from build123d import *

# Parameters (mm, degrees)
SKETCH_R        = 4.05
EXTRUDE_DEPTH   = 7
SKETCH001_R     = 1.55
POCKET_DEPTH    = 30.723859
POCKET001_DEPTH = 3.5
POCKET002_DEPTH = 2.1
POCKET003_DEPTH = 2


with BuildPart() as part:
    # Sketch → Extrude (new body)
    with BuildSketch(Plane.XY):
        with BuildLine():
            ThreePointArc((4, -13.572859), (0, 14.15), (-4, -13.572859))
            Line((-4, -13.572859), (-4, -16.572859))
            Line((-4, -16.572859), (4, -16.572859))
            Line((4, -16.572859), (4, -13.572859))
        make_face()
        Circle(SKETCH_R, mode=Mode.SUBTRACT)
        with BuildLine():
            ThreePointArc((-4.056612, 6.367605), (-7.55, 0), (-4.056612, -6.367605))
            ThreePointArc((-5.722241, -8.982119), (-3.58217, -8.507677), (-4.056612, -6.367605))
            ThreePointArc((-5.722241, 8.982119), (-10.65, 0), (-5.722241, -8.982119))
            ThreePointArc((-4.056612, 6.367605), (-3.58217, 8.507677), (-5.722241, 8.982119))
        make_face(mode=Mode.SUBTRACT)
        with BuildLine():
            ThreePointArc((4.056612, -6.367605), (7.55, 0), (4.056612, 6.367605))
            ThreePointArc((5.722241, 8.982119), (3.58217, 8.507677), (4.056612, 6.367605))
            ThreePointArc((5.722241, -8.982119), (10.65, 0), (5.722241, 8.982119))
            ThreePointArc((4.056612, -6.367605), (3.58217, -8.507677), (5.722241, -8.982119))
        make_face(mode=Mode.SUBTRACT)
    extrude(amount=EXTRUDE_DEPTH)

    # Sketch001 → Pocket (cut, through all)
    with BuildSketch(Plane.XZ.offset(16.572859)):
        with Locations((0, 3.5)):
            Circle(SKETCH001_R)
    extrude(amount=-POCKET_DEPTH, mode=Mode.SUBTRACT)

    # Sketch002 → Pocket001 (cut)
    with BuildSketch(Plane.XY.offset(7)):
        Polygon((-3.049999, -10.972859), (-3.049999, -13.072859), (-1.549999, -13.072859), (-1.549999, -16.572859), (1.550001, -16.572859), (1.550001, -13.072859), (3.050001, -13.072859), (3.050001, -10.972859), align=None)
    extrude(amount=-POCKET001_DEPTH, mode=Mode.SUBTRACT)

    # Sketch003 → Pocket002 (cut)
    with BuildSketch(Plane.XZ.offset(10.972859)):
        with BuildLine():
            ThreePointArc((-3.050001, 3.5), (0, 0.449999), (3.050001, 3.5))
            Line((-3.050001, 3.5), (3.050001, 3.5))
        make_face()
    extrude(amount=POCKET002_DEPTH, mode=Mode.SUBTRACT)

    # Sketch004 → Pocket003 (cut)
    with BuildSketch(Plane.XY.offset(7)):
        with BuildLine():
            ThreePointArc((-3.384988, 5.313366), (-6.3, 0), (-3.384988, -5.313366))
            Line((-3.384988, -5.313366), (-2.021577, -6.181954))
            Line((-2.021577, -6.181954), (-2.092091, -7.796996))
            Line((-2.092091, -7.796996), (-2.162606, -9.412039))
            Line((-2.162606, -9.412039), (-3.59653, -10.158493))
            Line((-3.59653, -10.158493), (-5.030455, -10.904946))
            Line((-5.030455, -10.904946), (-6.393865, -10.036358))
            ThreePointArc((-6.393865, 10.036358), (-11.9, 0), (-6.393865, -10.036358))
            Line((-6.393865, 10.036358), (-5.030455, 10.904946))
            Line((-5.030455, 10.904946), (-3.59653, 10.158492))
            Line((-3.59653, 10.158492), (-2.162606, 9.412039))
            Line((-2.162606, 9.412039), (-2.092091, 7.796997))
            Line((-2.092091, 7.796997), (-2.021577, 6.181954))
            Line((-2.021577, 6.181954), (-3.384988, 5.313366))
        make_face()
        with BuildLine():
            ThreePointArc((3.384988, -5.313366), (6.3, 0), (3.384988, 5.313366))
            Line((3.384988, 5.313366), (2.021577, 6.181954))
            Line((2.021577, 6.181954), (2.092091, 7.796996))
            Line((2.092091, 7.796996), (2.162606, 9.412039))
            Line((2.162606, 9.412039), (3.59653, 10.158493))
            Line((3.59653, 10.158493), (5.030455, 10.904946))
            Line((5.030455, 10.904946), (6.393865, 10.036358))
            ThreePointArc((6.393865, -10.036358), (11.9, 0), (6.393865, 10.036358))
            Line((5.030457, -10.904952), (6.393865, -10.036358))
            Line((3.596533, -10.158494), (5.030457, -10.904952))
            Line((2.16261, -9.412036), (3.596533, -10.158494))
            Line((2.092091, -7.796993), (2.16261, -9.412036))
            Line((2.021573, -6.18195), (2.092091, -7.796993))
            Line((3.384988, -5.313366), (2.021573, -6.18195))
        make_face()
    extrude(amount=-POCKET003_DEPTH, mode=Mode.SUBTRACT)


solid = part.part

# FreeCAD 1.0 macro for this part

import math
import FreeCAD as App
import Part
import Sketcher

V = App.Vector
Q = App.Units.Quantity


def add_polygon(sketch, points):
    """Adds a closed chain of lines whose ends are joined by coincident constraints."""
    first, n = sketch.GeometryCount, len(points)
    for a, b in zip(points, points[1:] + points[:1]):
        sketch.addGeometry(Part.LineSegment(App.Vector(*a, 0), App.Vector(*b, 0)), False)
    for i in range(n):
        sketch.addConstraint(Sketcher.Constraint("Coincident", first + i, 2, first + (i + 1) % n, 1))

doc = App.newDocument("Part")
body = doc.addObject("PartDesign::Body", "Body")

# Sketch on XY plane
sketch1 = body.newObject("Sketcher::SketchObject", "Sketch")
sketch1.AttachmentSupport = (doc.getObject("XY_Plane"), [""])
sketch1.MapMode = "FlatFace"
sketch1.addGeometry([
    Part.ArcOfCircle(Part.Circle(V(0, 0, 0), V(0, 0, 1), 14.2), math.radians(-74), math.radians(254)),  # 0
    Part.LineSegment(V(-4, -13.6, 0), V(-4, -16.6, 0)),  # 1
    Part.LineSegment(V(-4, -16.6, 0), V(4, -16.6, 0)),  # 2
    Part.LineSegment(V(4, -16.6, 0), V(4, -13.6, 0)),  # 3
    Part.ArcOfCircle(Part.Circle(V(-4.9, 7.7, 0), V(0, 0, 1), 1.6), math.radians(-57), math.radians(122)),  # 4
    Part.ArcOfCircle(Part.Circle(V(0, 0, 0), V(0, 0, 1), 7.5), math.radians(122), math.radians(238)),  # 5
    Part.ArcOfCircle(Part.Circle(V(-4.9, -7.7, 0), V(0, 0, 1), 1.6), math.radians(-122), math.radians(57)),  # 6
    Part.ArcOfCircle(Part.Circle(V(0, 0, 0), V(0, 0, 1), 10.7), math.radians(123), math.radians(237)),  # 7
    Part.Circle(V(0, 0, 0), V(0, 0, 1), 4),  # 8
    Part.ArcOfCircle(Part.Circle(V(4.9, -7.7, 0), V(0, 0, 1), 1.6), math.radians(123), math.radians(302)),  # 9
    Part.ArcOfCircle(Part.Circle(V(0, 0, 0), V(0, 0, 1), 7.5), math.radians(-58), math.radians(58)),  # 10
    Part.ArcOfCircle(Part.Circle(V(4.9, 7.7, 0), V(0, 0, 1), 1.6), math.radians(58), math.radians(237)),  # 11
    Part.ArcOfCircle(Part.Circle(V(0, 0, 0), V(0, 0, 1), 10.7), math.radians(-57), math.radians(57)),  # 12
], False)
sketch1.addConstraint([
    Sketcher.Constraint("Coincident", 0, 2, 1, 1),
    Sketcher.Constraint("Coincident", 1, 2, 2, 1),
    Sketcher.Constraint("Coincident", 2, 2, 3, 1),
    Sketcher.Constraint("Coincident", 3, 2, 0, 1),
    Sketcher.Constraint("Tangent", 4, 1, 5, 1),
    Sketcher.Constraint("Tangent", 5, 2, 6, 2),
    Sketcher.Constraint("Tangent", 6, 1, 7, 2),
    Sketcher.Constraint("Tangent", 7, 1, 4, 2),
    Sketcher.Constraint("Tangent", 9, 1, 10, 1),
    Sketcher.Constraint("Tangent", 10, 2, 11, 2),
    Sketcher.Constraint("Tangent", 11, 1, 12, 2),
    Sketcher.Constraint("Tangent", 12, 1, 9, 2),
    Sketcher.Constraint("Vertical", 1),
    Sketcher.Constraint("Horizontal", 2),
    Sketcher.Constraint("Vertical", 3),
    Sketcher.Constraint("Coincident", 0, 3, -1, 1),
    Sketcher.Constraint("Coincident", 5, 3, -1, 1),
    Sketcher.Constraint("Coincident", 7, 3, -1, 1),
    Sketcher.Constraint("Coincident", 8, 3, -1, 1),
    Sketcher.Constraint("Coincident", 10, 3, -1, 1),
    Sketcher.Constraint("Coincident", 12, 3, -1, 1),
    Sketcher.Constraint("Equal", 6, 9),
    Sketcher.Constraint("Equal", 5, 10),
    Sketcher.Constraint("Horizontal", 6, 3, 9, 3),
    Sketcher.Constraint("Horizontal", 4, 3, 11, 3),
    Sketcher.Constraint("Horizontal", 0, 2, 3, 2),
    Sketcher.Constraint("Vertical", 4, 3, 6, 3),
    Sketcher.Constraint("Diameter", 8, 8.1),
    Sketcher.Constraint("DistanceX", 2, 1, 2, 2, 8.0),
    Sketcher.Constraint("DistanceY", 1, 2, 1, 1, 3.0),
    Sketcher.Constraint("Radius", 0, 14.15),
    Sketcher.Constraint("Radius", 4, 1.55),
    Sketcher.Constraint("Radius", 5, 7.549999),
    Sketcher.Constraint("DistanceY", -1, 1, 4, 3, 7.674862),
])
pad1 = body.newObject("PartDesign::Pad", "Pad")
pad1.Profile = sketch1
pad1.Length = 7

# Sketch on XZ plane
sketch2 = body.newObject("Sketcher::SketchObject", "Sketch001")
sketch2.AttachmentSupport = (doc.getObject("XZ_Plane"), [""])
sketch2.MapMode = "FlatFace"
sketch2.AttachmentOffset = App.Placement(V(0, 0, 16.572859), App.Rotation())
sketch2.addGeometry(Part.Circle(V(0, 3.5, 0), V(0, 0, 1), 1.6), False)
sketch2.addConstraint([
    Sketcher.Constraint("PointOnObject", 0, 3, -2),
    Sketcher.Constraint("Diameter", 0, 3.1),
    Sketcher.Constraint("DistanceY", -1, 1, 0, 3, 3.5),
])
pocket1 = body.newObject("PartDesign::Pocket", "Pocket")
pocket1.Profile = sketch2
pocket1.Type = "ThroughAll"

# Sketch on XY plane
sketch3 = body.newObject("Sketcher::SketchObject", "Sketch002")
sketch3.AttachmentSupport = (doc.getObject("XY_Plane"), [""])
sketch3.MapMode = "FlatFace"
sketch3.AttachmentOffset = App.Placement(V(0, 0, 7), App.Rotation())
add_polygon(sketch3, [(-3, -11), (-3, -13.1), (-1.5, -13.1), (-1.5, -16.6), (1.6, -16.6), (1.6, -13.1), (3.1, -13.1), (3.1, -11)])  # lines 0-7
sketch3.addConstraint([
    Sketcher.Constraint("Vertical", 0),
    Sketcher.Constraint("Horizontal", 1),
    Sketcher.Constraint("Vertical", 2),
    Sketcher.Constraint("Horizontal", 3),
    Sketcher.Constraint("Vertical", 4),
    Sketcher.Constraint("Horizontal", 5),
    Sketcher.Constraint("Vertical", 6),
    Sketcher.Constraint("Horizontal", 7),
    Sketcher.Constraint("Symmetric", 1, 2, 4, 2, -2),
    Sketcher.Constraint("Equal", 1, 5),
    Sketcher.Constraint("DistanceX", 1, 1, 1, 2, 1.5),
    Sketcher.Constraint("DistanceX", 3, 1, 3, 2, 3.1),
    Sketcher.Constraint("DistanceY", 0, 2, 0, 1, 2.1),
    Sketcher.Constraint("DistanceY", 2, 2, 2, 1, 3.5),
    Sketcher.Constraint("DistanceY", 0, 2, -1, 1, 13.072859),
])
pocket2 = body.newObject("PartDesign::Pocket", "Pocket001")
pocket2.Profile = sketch3
pocket2.Length = 3.5

# Sketch on XZ plane
sketch4 = body.newObject("Sketcher::SketchObject", "Sketch003")
sketch4.AttachmentSupport = (doc.getObject("XZ_Plane"), [""])
sketch4.MapMode = "FlatFace"
sketch4.AttachmentOffset = App.Placement(V(0, 0, 10.972859), App.Rotation())
sketch4.addGeometry([
    Part.ArcOfCircle(Part.Circle(V(0, 3.5, 0), V(0, 0, 1), 3.1), math.radians(180), math.radians(360)),
    Part.LineSegment(V(3.1, 3.5, 0), V(-3.1, 3.5, 0)),
], False)
sketch4.addConstraint([
    Sketcher.Constraint("Coincident", 0, 1, 1, 2),
    Sketcher.Constraint("Coincident", 1, 1, 0, 2),
    Sketcher.Constraint("Horizontal", 1),
    Sketcher.Constraint("PointOnObject", 0, 3, -2),
    Sketcher.Constraint("Radius", 0, 3.050001),
    Sketcher.Constraint("DistanceY", -1, 1, 0, 3, 3.5),
    Sketcher.Constraint("DistanceY", -1, 1, 0, 1, 3.5),
])
pocket3 = body.newObject("PartDesign::Pocket", "Pocket002")
pocket3.Profile = sketch4
pocket3.Length = 2.1
pocket3.Reversed = True

# Sketch on XY plane
sketch5 = body.newObject("Sketcher::SketchObject", "Sketch004")
sketch5.AttachmentSupport = (doc.getObject("XY_Plane"), [""])
sketch5.MapMode = "FlatFace"
sketch5.AttachmentOffset = App.Placement(V(0, 0, 7), App.Rotation())
sketch5.addGeometry([
    Part.ArcOfCircle(Part.Circle(V(0, 0, 0), V(0, 0, 1), 6.3), math.radians(123), math.radians(237)),  # 0
    Part.LineSegment(V(-3.4, 5.3, 0), V(-2, 6.2, 0)),  # 1
    Part.LineSegment(V(-2, 6.2, 0), V(-2.1, 7.8, 0)),  # 2
    Part.LineSegment(V(-2.1, 7.8, 0), V(-2.2, 9.4, 0)),  # 3
    Part.LineSegment(V(-2.2, 9.4, 0), V(-3.6, 10.2, 0)),  # 4
    Part.LineSegment(V(-3.6, 10.2, 0), V(-5, 10.9, 0)),  # 5
    Part.LineSegment(V(-5, 10.9, 0), V(-6.4, 10, 0)),  # 6
    Part.ArcOfCircle(Part.Circle(V(0, 0, 0), V(0, 0, 1), 11.9), math.radians(122), math.radians(238)),  # 7
    Part.LineSegment(V(-6.4, -10, 0), V(-5, -10.9, 0)),  # 8
    Part.LineSegment(V(-5, -10.9, 0), V(-3.6, -10.2, 0)),  # 9
    Part.LineSegment(V(-3.6, -10.2, 0), V(-2.2, -9.4, 0)),  # 10
    Part.LineSegment(V(-2.2, -9.4, 0), V(-2.1, -7.8, 0)),  # 11
    Part.LineSegment(V(-2.1, -7.8, 0), V(-2, -6.2, 0)),  # 12
    Part.LineSegment(V(-2, -6.2, 0), V(-3.4, -5.3, 0)),  # 13
    Part.ArcOfCircle(Part.Circle(V(0, 0, 0), V(0, 0, 1), 6.3), math.radians(-57), math.radians(57)),  # 14
    Part.LineSegment(V(3.4, -5.3, 0), V(2, -6.2, 0)),  # 15
    Part.LineSegment(V(2, -6.2, 0), V(2.1, -7.8, 0)),  # 16
    Part.LineSegment(V(2.1, -7.8, 0), V(2.2, -9.4, 0)),  # 17
    Part.LineSegment(V(2.2, -9.4, 0), V(3.6, -10.2, 0)),  # 18
    Part.LineSegment(V(3.6, -10.2, 0), V(5, -10.9, 0)),  # 19
    Part.LineSegment(V(5, -10.9, 0), V(6.4, -10, 0)),  # 20
    Part.ArcOfCircle(Part.Circle(V(0, 0, 0), V(0, 0, 1), 11.9), math.radians(-58), math.radians(58)),  # 21
    Part.LineSegment(V(6.4, 10, 0), V(5, 10.9, 0)),  # 22
    Part.LineSegment(V(5, 10.9, 0), V(3.6, 10.2, 0)),  # 23
    Part.LineSegment(V(3.6, 10.2, 0), V(2.2, 9.4, 0)),  # 24
    Part.LineSegment(V(2.2, 9.4, 0), V(2.1, 7.8, 0)),  # 25
    Part.LineSegment(V(2.1, 7.8, 0), V(2, 6.2, 0)),  # 26
    Part.LineSegment(V(2, 6.2, 0), V(3.4, 5.3, 0)),  # 27
], False)
sketch5.addConstraint([
    Sketcher.Constraint("Tangent", 0, 1, 1, 1),
    Sketcher.Constraint("Coincident", 1, 2, 2, 1),
    Sketcher.Constraint("Coincident", 2, 2, 3, 1),
    Sketcher.Constraint("Coincident", 3, 2, 4, 1),
    Sketcher.Constraint("Coincident", 4, 2, 5, 1),
    Sketcher.Constraint("Coincident", 5, 2, 6, 1),
    Sketcher.Constraint("Tangent", 6, 2, 7, 1),
    Sketcher.Constraint("Tangent", 7, 2, 8, 1),
    Sketcher.Constraint("Coincident", 8, 2, 9, 1),
    Sketcher.Constraint("Coincident", 9, 2, 10, 1),
    Sketcher.Constraint("Coincident", 10, 2, 11, 1),
    Sketcher.Constraint("Coincident", 11, 2, 12, 1),
    Sketcher.Constraint("Coincident", 12, 2, 13, 1),
    Sketcher.Constraint("Tangent", 13, 2, 0, 2),
    Sketcher.Constraint("Coincident", 14, 1, 15, 1),
    Sketcher.Constraint("Coincident", 15, 2, 16, 1),
    Sketcher.Constraint("Coincident", 16, 2, 17, 1),
    Sketcher.Constraint("Coincident", 17, 2, 18, 1),
    Sketcher.Constraint("Coincident", 18, 2, 19, 1),
    Sketcher.Constraint("Coincident", 19, 2, 20, 1),
    Sketcher.Constraint("Coincident", 20, 2, 21, 1),
    Sketcher.Constraint("Tangent", 21, 2, 22, 1),
    Sketcher.Constraint("Coincident", 22, 2, 23, 1),
    Sketcher.Constraint("Coincident", 23, 2, 24, 1),
    Sketcher.Constraint("Coincident", 24, 2, 25, 1),
    Sketcher.Constraint("Coincident", 25, 2, 26, 1),
    Sketcher.Constraint("Coincident", 26, 2, 27, 1),
    Sketcher.Constraint("Tangent", 27, 2, 14, 2),
    Sketcher.Constraint("Coincident", 0, 3, -1, 1),
    Sketcher.Constraint("Coincident", 7, 3, -1, 1),
    Sketcher.Constraint("Coincident", 14, 3, -1, 1),
    Sketcher.Constraint("Coincident", 21, 3, -1, 1),
    Sketcher.Constraint("Equal", 0, 14),
    Sketcher.Constraint("Equal", 7, 21),
    Sketcher.Constraint("Symmetric", 1, 2, 15, 2, -1, 1),
    Sketcher.Constraint("Symmetric", 2, 2, 16, 2, -1, 1),
    Sketcher.Constraint("Symmetric", 3, 2, 17, 2, -1, 1),
    Sketcher.Constraint("Symmetric", 4, 2, 18, 2, -1, 1),
    Sketcher.Constraint("Symmetric", 5, 2, 19, 2, -1, 1),
    Sketcher.Constraint("Symmetric", 8, 2, 22, 2, -1, 1),
    Sketcher.Constraint("Symmetric", 9, 2, 23, 2, -1, 1),
    Sketcher.Constraint("Symmetric", 10, 2, 24, 2, -1, 1),
    Sketcher.Constraint("Symmetric", 11, 2, 25, 2, -1, 1),
    Sketcher.Constraint("Symmetric", 12, 2, 26, 2, -1, 1),
    Sketcher.Constraint("Symmetric", 12, 2, 15, 2, -2),
    Sketcher.Constraint("Symmetric", 11, 2, 16, 2, -2),
    Sketcher.Constraint("Symmetric", 10, 2, 17, 2, -2),
    Sketcher.Constraint("Symmetric", 9, 2, 18, 2, -2),
    Sketcher.Constraint("Symmetric", 8, 2, 19, 2, -2),
    Sketcher.Constraint("Parallel", 2, 3),
    Sketcher.Constraint("Parallel", 4, 5),
    Sketcher.Constraint("Parallel", 1, 6),
    Sketcher.Constraint("Horizontal", 13, 2, 14, 1),
    Sketcher.Constraint("Horizontal", 7, 2, 20, 2),
    Sketcher.Constraint("Equal", 1, 2),
    Sketcher.Constraint("Equal", 2, 3),
    Sketcher.Constraint("Equal", 3, 4),
    Sketcher.Constraint("Equal", 4, 5),
    Sketcher.Constraint("Equal", 5, 6),
    Sketcher.Constraint("Radius", 0, 6.3),
    Sketcher.Constraint("Radius", 7, 11.899999),
    Sketcher.Constraint("Angle", 1, Q("32.499982 deg")),
    Sketcher.Constraint("Angle", 2, Q("92.499989 deg")),
])
pocket4 = body.newObject("PartDesign::Pocket", "Pocket003")
pocket4.Profile = sketch5
pocket4.Length = 2

doc.recompute()
